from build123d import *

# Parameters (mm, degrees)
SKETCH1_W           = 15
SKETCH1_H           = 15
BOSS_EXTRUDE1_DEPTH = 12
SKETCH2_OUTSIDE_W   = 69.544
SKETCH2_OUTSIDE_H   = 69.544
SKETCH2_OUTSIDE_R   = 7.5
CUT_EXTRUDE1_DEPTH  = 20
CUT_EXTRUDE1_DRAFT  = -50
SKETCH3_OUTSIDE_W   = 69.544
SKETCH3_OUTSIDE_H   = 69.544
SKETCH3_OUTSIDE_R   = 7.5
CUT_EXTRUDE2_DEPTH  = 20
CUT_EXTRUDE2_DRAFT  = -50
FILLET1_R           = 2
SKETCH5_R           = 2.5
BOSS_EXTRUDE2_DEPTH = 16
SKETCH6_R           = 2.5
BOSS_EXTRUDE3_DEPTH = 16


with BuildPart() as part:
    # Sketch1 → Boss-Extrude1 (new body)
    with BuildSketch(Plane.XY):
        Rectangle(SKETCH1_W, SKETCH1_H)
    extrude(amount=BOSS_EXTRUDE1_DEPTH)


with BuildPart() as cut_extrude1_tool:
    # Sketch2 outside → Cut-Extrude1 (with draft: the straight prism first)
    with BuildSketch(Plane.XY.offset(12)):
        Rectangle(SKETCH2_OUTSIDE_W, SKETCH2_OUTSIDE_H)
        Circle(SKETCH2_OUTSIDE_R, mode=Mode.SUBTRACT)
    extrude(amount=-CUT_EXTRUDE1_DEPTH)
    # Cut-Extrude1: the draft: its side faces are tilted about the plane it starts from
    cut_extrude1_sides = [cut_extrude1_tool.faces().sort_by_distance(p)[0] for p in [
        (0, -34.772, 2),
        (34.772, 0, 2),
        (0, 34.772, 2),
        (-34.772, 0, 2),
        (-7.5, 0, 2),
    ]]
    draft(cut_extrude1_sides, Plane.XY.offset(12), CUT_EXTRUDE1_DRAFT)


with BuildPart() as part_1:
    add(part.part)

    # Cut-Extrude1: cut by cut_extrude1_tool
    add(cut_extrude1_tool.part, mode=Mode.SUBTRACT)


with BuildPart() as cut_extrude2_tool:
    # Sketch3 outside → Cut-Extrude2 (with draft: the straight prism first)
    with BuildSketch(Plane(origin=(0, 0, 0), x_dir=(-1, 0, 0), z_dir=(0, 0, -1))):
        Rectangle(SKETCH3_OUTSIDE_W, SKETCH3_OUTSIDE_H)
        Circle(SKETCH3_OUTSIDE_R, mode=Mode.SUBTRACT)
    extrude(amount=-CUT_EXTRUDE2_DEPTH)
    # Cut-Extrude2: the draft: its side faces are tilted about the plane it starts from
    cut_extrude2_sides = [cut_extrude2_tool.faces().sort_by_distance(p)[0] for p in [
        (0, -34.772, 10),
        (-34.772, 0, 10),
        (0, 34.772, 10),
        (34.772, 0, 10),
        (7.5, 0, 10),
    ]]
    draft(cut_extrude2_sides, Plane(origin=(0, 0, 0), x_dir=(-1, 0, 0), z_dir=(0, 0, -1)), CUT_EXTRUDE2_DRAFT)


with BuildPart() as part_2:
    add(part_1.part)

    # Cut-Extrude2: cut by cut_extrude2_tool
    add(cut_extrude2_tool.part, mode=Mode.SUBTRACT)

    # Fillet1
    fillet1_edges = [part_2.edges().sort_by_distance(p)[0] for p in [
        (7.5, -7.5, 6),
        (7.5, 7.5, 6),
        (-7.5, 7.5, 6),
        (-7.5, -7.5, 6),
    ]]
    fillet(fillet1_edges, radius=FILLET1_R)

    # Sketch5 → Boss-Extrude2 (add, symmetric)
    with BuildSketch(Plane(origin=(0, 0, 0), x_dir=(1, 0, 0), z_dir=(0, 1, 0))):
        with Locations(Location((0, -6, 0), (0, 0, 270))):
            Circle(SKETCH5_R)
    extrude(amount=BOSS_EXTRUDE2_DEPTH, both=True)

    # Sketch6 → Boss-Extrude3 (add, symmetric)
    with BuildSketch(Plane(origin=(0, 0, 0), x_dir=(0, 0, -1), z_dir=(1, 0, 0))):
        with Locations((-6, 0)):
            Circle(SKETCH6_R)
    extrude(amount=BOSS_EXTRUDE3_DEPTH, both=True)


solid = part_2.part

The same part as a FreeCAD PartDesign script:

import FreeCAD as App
import Part
import Sketcher


def edges_at(feature, points):
    """Names of the edges that pass closest to the given points."""
    edges = feature.Shape.Edges
    near = lambda p: min(range(len(edges)), key=lambda i: edges[i].distToShape(Part.Vertex(*p))[0])
    return sorted({f"Edge{near(p) + 1}" for p in points})


def faces_at(feature, points):
    """Names of the faces that lie closest to the given points."""
    faces = feature.Shape.Faces
    near = lambda p: min(range(len(faces)), key=lambda i: faces[i].distToShape(Part.Vertex(*p))[0])
    return sorted({f"Face{near(p) + 1}" for p in points})

doc = App.newDocument("Part")
params = doc.addObject("Spreadsheet::Sheet", "Params")
for row, (alias, value) in enumerate([
    ("sketch1_width", "15 mm"),
    ("pad1_length", "12 mm"),
    ("sketch2_diameter", "15 mm"),
    ("pad2_length", "20 mm"),
    ("draft_angle", "50 deg"),
    ("sketch3_diameter", "15 mm"),
    ("pad3_length", "20 mm"),
    ("draft2_angle", "50 deg"),
    ("fillet_radius", "2 mm"),
    ("sketch4_diameter", "5 mm"),
    ("pad4_length", "32 mm"),
    ("sketch5_diameter", "5 mm"),
    ("pad5_length", "32 mm"),
], start=1):
    params.set(f"A{row}", alias)
    params.set(f"B{row}", "=" + value)
    params.setAlias(f"B{row}", alias)

body = doc.addObject("PartDesign::Body", "Body")

sketch1 = body.newObject("Sketcher::SketchObject", "Sketch")
sketch1.AttachmentSupport = (doc.getObject("XY_Plane"), [""])
sketch1.MapMode = "FlatFace"
sketch1.addGeometry(Part.LineSegment(App.Vector(-7.5, 7.5, 0), App.Vector(-7.5, -7.5, 0)), False)
sketch1.addGeometry(Part.LineSegment(App.Vector(-7.5, -7.5, 0), App.Vector(7.5, -7.5, 0)), False)
sketch1.addGeometry(Part.LineSegment(App.Vector(7.5, -7.5, 0), App.Vector(7.5, 7.5, 0)), False)
sketch1.addGeometry(Part.LineSegment(App.Vector(7.5, 7.5, 0), App.Vector(-7.5, 7.5, 0)), False)
sketch1.addConstraint(Sketcher.Constraint("Coincident", 0, 2, 1, 1))
sketch1.addConstraint(Sketcher.Constraint("Coincident", 1, 2, 2, 1))
sketch1.addConstraint(Sketcher.Constraint("Coincident", 2, 2, 3, 1))
sketch1.addConstraint(Sketcher.Constraint("Coincident", 3, 2, 0, 1))
sketch1.addConstraint(Sketcher.Constraint("Vertical", 0))
sketch1.addConstraint(Sketcher.Constraint("Horizontal", 1))
sketch1.addConstraint(Sketcher.Constraint("Vertical", 2))
sketch1.addConstraint(Sketcher.Constraint("Horizontal", 3))
sketch1.addConstraint(Sketcher.Constraint("Symmetric", 0, 2, 2, 2, -1, 1))
sketch1.addConstraint(Sketcher.Constraint("Equal", 3, 0))
sketch1.addConstraint(Sketcher.Constraint("DistanceX", 1, 1, 1, 2, 15.0))
sketch1.setExpression("Constraints[10]", "Params.sketch1_width")
pad1 = body.newObject("PartDesign::Pad", "Pad")
pad1.Profile = sketch1
pad1.setExpression("Length", "Params.pad1_length")
body2 = doc.addObject("PartDesign::Body", "Body001")

sketch2 = body2.newObject("Sketcher::SketchObject", "Sketch001")
sketch2.AttachmentSupport = (doc.getObject("XY_Plane001"), [""])
sketch2.MapMode = "FlatFace"
sketch2.AttachmentOffset = App.Placement(App.Vector(0, 0, 12), App.Rotation())
sketch2.addGeometry(Part.LineSegment(App.Vector(-34.772, 34.772, 0), App.Vector(-34.772, -34.772, 0)), False)
sketch2.addGeometry(Part.LineSegment(App.Vector(-34.772, -34.772, 0), App.Vector(34.772, -34.772, 0)), False)
sketch2.addGeometry(Part.LineSegment(App.Vector(34.772, -34.772, 0), App.Vector(34.772, 34.772, 0)), False)
sketch2.addGeometry(Part.LineSegment(App.Vector(34.772, 34.772, 0), App.Vector(-34.772, 34.772, 0)), False)
sketch2.addGeometry(Part.Circle(App.Vector(0, 0, 0), App.Vector(0, 0, 1), 7.5), False)
sketch2.addConstraint(Sketcher.Constraint("Coincident", 0, 2, 1, 1))
sketch2.addConstraint(Sketcher.Constraint("Coincident", 1, 2, 2, 1))
sketch2.addConstraint(Sketcher.Constraint("Coincident", 2, 2, 3, 1))
sketch2.addConstraint(Sketcher.Constraint("Coincident", 3, 2, 0, 1))
sketch2.addConstraint(Sketcher.Constraint("Vertical", 0))
sketch2.addConstraint(Sketcher.Constraint("Horizontal", 1))
sketch2.addConstraint(Sketcher.Constraint("Vertical", 2))
sketch2.addConstraint(Sketcher.Constraint("Horizontal", 3))
sketch2.addConstraint(Sketcher.Constraint("Coincident", 4, 3, -1, 1))
sketch2.addConstraint(Sketcher.Constraint("Symmetric", 0, 2, 2, 2, -1, 1))
sketch2.addConstraint(Sketcher.Constraint("Equal", 3, 0))
sketch2.addConstraint(Sketcher.Constraint("Diameter", 4, 15.0))
sketch2.addConstraint(Sketcher.Constraint("DistanceX", 1, 1, 1, 2, 69.544))
sketch2.setExpression("Constraints[11]", "Params.sketch2_diameter")
pad2 = body2.newObject("PartDesign::Pad", "Pad001")
pad2.Profile = sketch2
pad2.setExpression("Length", "Params.pad2_length")
pad2.Reversed = True
doc.recompute()

datumplane = body2.newObject("PartDesign::Plane", "DatumPlane")
datumplane.AttachmentSupport = (doc.getObject("XY_Plane001"), [""])
datumplane.MapMode = "FlatFace"
datumplane.AttachmentOffset = App.Placement(App.Vector(0, 0, 12), App.Rotation())
draft = body2.newObject("PartDesign::Draft", "Draft")
draft.Base = (pad2, faces_at(pad2, [
    (0, -34.772, 2),
    (34.772, 0, 2),
    (0, 34.772, 2),
    (-34.772, 0, 2),
    (-7.5, 0, 2),
]))
draft.NeutralPlane = (datumplane, [""])
draft.setExpression("Angle", "Params.draft_angle")
draft.Reversed = True
doc.recompute()

boolean = body.newObject("PartDesign::Boolean", "Boolean")
boolean.Type = "Cut"
boolean.addObjects([body2])
body3 = doc.addObject("PartDesign::Body", "Body002")

sketch3 = body3.newObject("Sketcher::SketchObject", "Sketch002")
sketch3.AttachmentSupport = (doc.getObject("XY_Plane002"), [""])
sketch3.MapMode = "FlatFace"
sketch3.addGeometry(Part.LineSegment(App.Vector(34.772, 34.772, 0), App.Vector(34.772, -34.772, 0)), False)
sketch3.addGeometry(Part.LineSegment(App.Vector(34.772, -34.772, 0), App.Vector(-34.772, -34.772, 0)), False)
sketch3.addGeometry(Part.LineSegment(App.Vector(-34.772, -34.772, 0), App.Vector(-34.772, 34.772, 0)), False)
sketch3.addGeometry(Part.LineSegment(App.Vector(-34.772, 34.772, 0), App.Vector(34.772, 34.772, 0)), False)
sketch3.addGeometry(Part.Circle(App.Vector(0, 0, 0), App.Vector(0, 0, 1), 7.5), False)
sketch3.addConstraint(Sketcher.Constraint("Coincident", 0, 2, 1, 1))
sketch3.addConstraint(Sketcher.Constraint("Coincident", 1, 2, 2, 1))
sketch3.addConstraint(Sketcher.Constraint("Coincident", 2, 2, 3, 1))
sketch3.addConstraint(Sketcher.Constraint("Coincident", 3, 2, 0, 1))
sketch3.addConstraint(Sketcher.Constraint("Vertical", 0))
sketch3.addConstraint(Sketcher.Constraint("Horizontal", 1))
sketch3.addConstraint(Sketcher.Constraint("Vertical", 2))
sketch3.addConstraint(Sketcher.Constraint("Horizontal", 3))
sketch3.addConstraint(Sketcher.Constraint("Coincident", 4, 3, -1, 1))
sketch3.addConstraint(Sketcher.Constraint("Symmetric", 0, 2, 2, 2, -1, 1))
sketch3.addConstraint(Sketcher.Constraint("Equal", 3, 0))
sketch3.addConstraint(Sketcher.Constraint("Diameter", 4, 15.0))
sketch3.addConstraint(Sketcher.Constraint("DistanceX", 1, 2, 1, 1, 69.544))
sketch3.setExpression("Constraints[11]", "Params.sketch3_diameter")
pad3 = body3.newObject("PartDesign::Pad", "Pad002")
pad3.Profile = sketch3
pad3.setExpression("Length", "Params.pad3_length")
doc.recompute()

draft2 = body3.newObject("PartDesign::Draft", "Draft001")
draft2.Base = (pad3, faces_at(pad3, [
    (0, -34.772, 10),
    (-34.772, 0, 10),
    (0, 34.772, 10),
    (34.772, 0, 10),
    (7.5, 0, 10),
]))
draft2.NeutralPlane = (doc.getObject("XY_Plane002"), [""])
draft2.setExpression("Angle", "Params.draft2_angle")
draft2.Reversed = False
doc.recompute()

boolean2 = body.newObject("PartDesign::Boolean", "Boolean001")
boolean2.Type = "Cut"
boolean2.addObjects([body3])
doc.recompute()

fillet = body.newObject("PartDesign::Fillet", "Fillet")
fillet.Base = (boolean2, edges_at(boolean2, [
    (7.5, -7.5, 6),
    (7.5, 7.5, 6),
    (-7.5, 7.5, 6),
    (-7.5, -7.5, 6),
]))
fillet.setExpression("Radius", "Params.fillet_radius")

sketch4 = body.newObject("Sketcher::SketchObject", "Sketch003")
sketch4.AttachmentSupport = (doc.getObject("XZ_Plane"), [""])
sketch4.MapMode = "FlatFace"
sketch4.addGeometry(Part.Circle(App.Vector(0, 6, 0), App.Vector(0, 0, 1), 2.5), False)
sketch4.addConstraint(Sketcher.Constraint("PointOnObject", 0, 3, -2))
sketch4.addConstraint(Sketcher.Constraint("Diameter", 0, 5.0))
sketch4.addConstraint(Sketcher.Constraint("DistanceY", -1, 1, 0, 3, 6.0))
sketch4.setExpression("Constraints[1]", "Params.sketch4_diameter")
pad4 = body.newObject("PartDesign::Pad", "Pad003")
pad4.Profile = sketch4
pad4.setExpression("Length", "Params.pad4_length")
pad4.Midplane = True

sketch5 = body.newObject("Sketcher::SketchObject", "Sketch004")
sketch5.AttachmentSupport = (doc.getObject("YZ_Plane"), [""])
sketch5.MapMode = "FlatFace"
sketch5.addGeometry(Part.Circle(App.Vector(0, 6, 0), App.Vector(0, 0, 1), 2.5), False)
sketch5.addConstraint(Sketcher.Constraint("PointOnObject", 0, 3, -2))
sketch5.addConstraint(Sketcher.Constraint("Diameter", 0, 5.0))
sketch5.addConstraint(Sketcher.Constraint("DistanceY", -1, 1, 0, 3, 6.0))
sketch5.setExpression("Constraints[1]", "Params.sketch5_diameter")
pad5 = body.newObject("PartDesign::Pad", "Pad004")
pad5.Profile = sketch5
pad5.setExpression("Length", "Params.pad5_length")
pad5.Midplane = True

doc.recompute()
